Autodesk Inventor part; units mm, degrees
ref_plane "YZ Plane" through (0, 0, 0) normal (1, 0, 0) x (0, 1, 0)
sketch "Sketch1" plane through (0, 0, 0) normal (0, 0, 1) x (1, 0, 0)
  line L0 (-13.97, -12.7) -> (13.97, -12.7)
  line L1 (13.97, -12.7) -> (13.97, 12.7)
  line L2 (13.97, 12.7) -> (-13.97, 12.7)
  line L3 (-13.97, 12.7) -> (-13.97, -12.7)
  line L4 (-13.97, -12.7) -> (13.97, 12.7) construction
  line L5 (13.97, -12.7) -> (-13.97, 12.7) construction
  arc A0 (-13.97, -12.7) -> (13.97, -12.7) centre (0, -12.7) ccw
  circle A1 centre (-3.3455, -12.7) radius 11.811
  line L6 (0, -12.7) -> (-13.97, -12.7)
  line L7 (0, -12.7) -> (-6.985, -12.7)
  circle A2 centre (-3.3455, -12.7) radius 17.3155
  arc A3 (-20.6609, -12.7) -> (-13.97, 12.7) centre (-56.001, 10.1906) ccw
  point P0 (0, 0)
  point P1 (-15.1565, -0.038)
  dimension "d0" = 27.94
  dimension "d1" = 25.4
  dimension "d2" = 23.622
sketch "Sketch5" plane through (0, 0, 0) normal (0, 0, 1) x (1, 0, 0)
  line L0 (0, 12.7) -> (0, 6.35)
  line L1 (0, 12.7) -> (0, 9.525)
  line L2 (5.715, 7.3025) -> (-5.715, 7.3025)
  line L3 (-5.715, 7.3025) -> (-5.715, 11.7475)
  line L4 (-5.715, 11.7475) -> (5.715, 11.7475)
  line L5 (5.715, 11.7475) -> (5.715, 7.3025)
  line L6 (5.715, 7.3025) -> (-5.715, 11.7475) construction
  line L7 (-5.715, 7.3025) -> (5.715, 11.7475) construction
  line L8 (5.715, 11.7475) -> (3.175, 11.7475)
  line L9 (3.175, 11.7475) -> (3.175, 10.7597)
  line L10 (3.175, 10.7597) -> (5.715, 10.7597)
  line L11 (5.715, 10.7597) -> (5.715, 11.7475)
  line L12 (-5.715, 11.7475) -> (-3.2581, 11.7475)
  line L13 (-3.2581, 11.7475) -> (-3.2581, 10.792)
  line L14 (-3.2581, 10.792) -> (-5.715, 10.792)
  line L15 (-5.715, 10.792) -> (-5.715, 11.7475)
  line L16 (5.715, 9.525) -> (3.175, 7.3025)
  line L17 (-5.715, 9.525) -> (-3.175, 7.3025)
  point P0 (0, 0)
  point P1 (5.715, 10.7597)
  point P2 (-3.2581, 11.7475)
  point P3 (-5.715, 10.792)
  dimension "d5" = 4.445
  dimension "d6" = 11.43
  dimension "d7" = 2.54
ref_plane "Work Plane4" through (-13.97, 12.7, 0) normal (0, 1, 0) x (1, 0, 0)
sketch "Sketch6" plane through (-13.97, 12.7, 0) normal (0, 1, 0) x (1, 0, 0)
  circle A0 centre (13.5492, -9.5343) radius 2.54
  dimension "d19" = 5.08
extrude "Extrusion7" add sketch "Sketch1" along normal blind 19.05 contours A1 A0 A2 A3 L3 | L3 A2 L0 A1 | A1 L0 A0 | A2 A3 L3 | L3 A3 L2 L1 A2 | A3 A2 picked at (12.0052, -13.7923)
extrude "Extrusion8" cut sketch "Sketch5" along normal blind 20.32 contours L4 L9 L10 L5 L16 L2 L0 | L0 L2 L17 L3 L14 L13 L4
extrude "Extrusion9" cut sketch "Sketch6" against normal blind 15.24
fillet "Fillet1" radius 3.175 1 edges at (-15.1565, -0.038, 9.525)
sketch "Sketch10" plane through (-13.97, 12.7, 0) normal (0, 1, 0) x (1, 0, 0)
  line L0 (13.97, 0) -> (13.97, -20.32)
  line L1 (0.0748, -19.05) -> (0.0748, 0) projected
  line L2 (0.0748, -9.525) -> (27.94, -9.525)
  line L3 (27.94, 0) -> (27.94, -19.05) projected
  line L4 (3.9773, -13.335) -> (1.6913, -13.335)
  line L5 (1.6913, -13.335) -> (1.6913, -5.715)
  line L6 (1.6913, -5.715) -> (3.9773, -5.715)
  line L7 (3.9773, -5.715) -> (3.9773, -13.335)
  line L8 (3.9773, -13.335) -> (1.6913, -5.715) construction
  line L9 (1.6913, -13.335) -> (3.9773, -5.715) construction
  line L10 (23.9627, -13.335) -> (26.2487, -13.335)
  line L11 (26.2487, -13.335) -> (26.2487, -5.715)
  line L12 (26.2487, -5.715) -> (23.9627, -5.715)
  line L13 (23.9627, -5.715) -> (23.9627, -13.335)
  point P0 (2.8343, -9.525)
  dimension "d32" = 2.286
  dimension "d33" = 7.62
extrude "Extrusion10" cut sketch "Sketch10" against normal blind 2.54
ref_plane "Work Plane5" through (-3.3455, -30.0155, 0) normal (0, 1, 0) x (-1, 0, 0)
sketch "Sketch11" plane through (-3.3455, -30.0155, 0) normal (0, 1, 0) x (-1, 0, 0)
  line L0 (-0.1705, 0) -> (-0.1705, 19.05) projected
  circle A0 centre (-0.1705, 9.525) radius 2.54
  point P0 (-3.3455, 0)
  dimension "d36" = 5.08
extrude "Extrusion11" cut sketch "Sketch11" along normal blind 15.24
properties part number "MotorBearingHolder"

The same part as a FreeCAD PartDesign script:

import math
import FreeCAD as App
import Part
import Sketcher

V = App.Vector
Q = App.Units.Quantity


def edges_at(feature, points):
    """Names of the edges that pass closest to the given points."""
    edges = feature.Shape.Edges
    near = lambda p: min(range(len(edges)), key=lambda i: edges[i].distToShape(Part.Vertex(*p))[0])
    return sorted({f"Edge{near(p) + 1}" for p in points})

doc = App.newDocument("Part")
body = doc.addObject("PartDesign::Body", "Body")

sketch1 = body.newObject("Sketcher::SketchObject", "Sketch")
sketch1.AttachmentSupport = (doc.getObject("XY_Plane"), [""])
sketch1.MapMode = "FlatFace"
sketch1.addGeometry(Part.LineSegment(V(13.97, -12.7, 0), V(13.97, 12.7, 0)), False)
sketch1.addGeometry(Part.LineSegment(V(13.97, 12.7, 0), V(-13.97, 12.7, 0)), False)
sketch1.addGeometry(Part.ArcOfCircle(Part.Circle(V(-56.001, 10.1906, 0), V(0, 0, 1), 42.105846), math.radians(-14.059152), math.radians(3.416706)), False)
sketch1.addGeometry(Part.ArcOfCircle(Part.Circle(V(-3.3455, -12.7, 0), V(0, 0, 1), 17.3155), math.radians(133.008024), math.radians(360)), False)
sketch1.addGeometry(Part.Circle(V(-3.3455, -12.7, 0), V(0, 0, 1), 11.811), False)
sketch1.addConstraint(Sketcher.Constraint("Coincident", 0, 2, 1, 1))
sketch1.addConstraint(Sketcher.Constraint("Coincident", 1, 2, 2, 2))
sketch1.addConstraint(Sketcher.Constraint("Coincident", 2, 1, 3, 1))
sketch1.addConstraint(Sketcher.Constraint("Tangent", 3, 2, 0, 1))
sketch1.addConstraint(Sketcher.Constraint("Vertical", 0))
sketch1.addConstraint(Sketcher.Constraint("Horizontal", 1))
sketch1.addConstraint(Sketcher.Constraint("Coincident", 4, 3, 3, 3))
sketch1.addConstraint(Sketcher.Constraint("Symmetric", 1, 2, 3, 2, -1, 1))
sketch1.addConstraint(Sketcher.Constraint("Diameter", 4, Q("0.93 in")))
sketch1.addConstraint(Sketcher.Constraint("DistanceY", 0, 1, 0, 2, Q("1 in")))
sketch1.addConstraint(Sketcher.Constraint("DistanceX", 1, 2, 1, 1, Q("1.1 in")))
sketch1.addConstraint(Sketcher.Constraint("Radius", 2, Q("1.6577 in")))
sketch1.addConstraint(Sketcher.Constraint("Radius", 3, Q("17.3155 mm")))
sketch1.addConstraint(Sketcher.Constraint("DistanceX", 2, 1, 3, 3, Q("0.465 in")))
pad1 = body.newObject("PartDesign::Pad", "Pad")
pad1.Profile = sketch1
pad1.Length = Q("0.75 in")

sketch2 = body.newObject("Sketcher::SketchObject", "Sketch001")
sketch2.AttachmentSupport = (doc.getObject("XY_Plane"), [""])
sketch2.MapMode = "FlatFace"
sketch2.addGeometry(Part.LineSegment(V(3.175, 11.7475, 0), V(-3.2581, 11.7475, 0)), False)
sketch2.addGeometry(Part.LineSegment(V(-3.2581, 11.7475, 0), V(-3.2581, 10.792, 0)), False)
sketch2.addGeometry(Part.LineSegment(V(-3.2581, 10.792, 0), V(-5.715, 10.792, 0)), False)
sketch2.addGeometry(Part.LineSegment(V(-5.715, 10.792, 0), V(-5.715, 9.525, 0)), False)
sketch2.addGeometry(Part.LineSegment(V(-5.715, 9.525, 0), V(-3.175, 7.3025, 0)), False)
sketch2.addGeometry(Part.LineSegment(V(-3.175, 7.3025, 0), V(3.175, 7.3025, 0)), False)
sketch2.addGeometry(Part.LineSegment(V(3.175, 7.3025, 0), V(5.715, 9.525, 0)), False)
sketch2.addGeometry(Part.LineSegment(V(5.715, 9.525, 0), V(5.715, 10.7597, 0)), False)
sketch2.addGeometry(Part.LineSegment(V(5.715, 10.7597, 0), V(3.175, 10.7597, 0)), False)
sketch2.addGeometry(Part.LineSegment(V(3.175, 10.7597, 0), V(3.175, 11.7475, 0)), False)
sketch2.addConstraint(Sketcher.Constraint("Coincident", 0, 2, 1, 1))
sketch2.addConstraint(Sketcher.Constraint("Coincident", 1, 2, 2, 1))
sketch2.addConstraint(Sketcher.Constraint("Coincident", 2, 2, 3, 1))
sketch2.addConstraint(Sketcher.Constraint("Coincident", 3, 2, 4, 1))
sketch2.addConstraint(Sketcher.Constraint("Coincident", 4, 2, 5, 1))
sketch2.addConstraint(Sketcher.Constraint("Coincident", 5, 2, 6, 1))
sketch2.addConstraint(Sketcher.Constraint("Coincident", 6, 2, 7, 1))
sketch2.addConstraint(Sketcher.Constraint("Coincident", 7, 2, 8, 1))
sketch2.addConstraint(Sketcher.Constraint("Coincident", 8, 2, 9, 1))
sketch2.addConstraint(Sketcher.Constraint("Coincident", 9, 2, 0, 1))
sketch2.addConstraint(Sketcher.Constraint("Horizontal", 0))
sketch2.addConstraint(Sketcher.Constraint("Vertical", 1))
sketch2.addConstraint(Sketcher.Constraint("Horizontal", 2))
sketch2.addConstraint(Sketcher.Constraint("Vertical", 3))
sketch2.addConstraint(Sketcher.Constraint("Horizontal", 5))
sketch2.addConstraint(Sketcher.Constraint("Vertical", 7))
sketch2.addConstraint(Sketcher.Constraint("Horizontal", 8))
sketch2.addConstraint(Sketcher.Constraint("Vertical", 9))
sketch2.addConstraint(Sketcher.Constraint("Symmetric", 3, 2, 6, 2, -2))
sketch2.addConstraint(Sketcher.Constraint("Vertical", 5, 2, 8, 2))
sketch2.addConstraint(Sketcher.Constraint("Equal", 4, 6))
sketch2.addConstraint(Sketcher.Constraint("DistanceX", 8, 2, 8, 1, Q("0.1 in")))
sketch2.addConstraint(Sketcher.Constraint("DistanceX", 3, 2, 6, 2, Q("0.45 in")))
sketch2.addConstraint(Sketcher.Constraint("DistanceY", 4, 2, 0, 2, Q("0.175 in")))
sketch2.addConstraint(Sketcher.Constraint("DistanceY", 7, 1, 7, 2, Q("0.0486 in")))
sketch2.addConstraint(Sketcher.Constraint("DistanceY", 9, 1, 9, 2, Q("0.0389 in")))
sketch2.addConstraint(Sketcher.Constraint("DistanceY", -1, 1, 3, 2, Q("0.375 in")))
sketch2.addConstraint(Sketcher.Constraint("DistanceX", 0, 2, 0, 1, Q("6.433 mm")))
sketch2.addConstraint(Sketcher.Constraint("DistanceY", 1, 2, 1, 1, Q("0.9555 mm")))
pocket1 = body.newObject("PartDesign::Pocket", "Pocket")
pocket1.Profile = sketch2
pocket1.Length = Q("0.8 in")
pocket1.Reversed = True

sketch3 = body.newObject("Sketcher::SketchObject", "Sketch002")
sketch3.AttachmentSupport = (doc.getObject("XZ_Plane"), [""])
sketch3.MapMode = "FlatFace"
sketch3.AttachmentOffset = App.Placement(V(0, 0, -0.5 * 25.4), App.Rotation())
sketch3.addGeometry(Part.Circle(V(-0.4208, 9.5343, 0), V(0, 0, 1), 2.54), False)
sketch3.addConstraint(Sketcher.Constraint("Diameter", 0, Q("0.2 in")))
sketch3.addConstraint(Sketcher.Constraint("DistanceX", 0, 3, -1, 1, Q("0.4208 mm")))
sketch3.addConstraint(Sketcher.Constraint("DistanceY", -1, 1, 0, 3, Q("9.5343 mm")))
pocket2 = body.newObject("PartDesign::Pocket", "Pocket001")
pocket2.Profile = sketch3
pocket2.Length = Q("0.6 in")
pocket2.Reversed = True
doc.recompute()

fillet = body.newObject("PartDesign::Fillet", "Fillet")
fillet.Base = (pocket2, edges_at(pocket2, [(-15.156, -0.038, 9.525)]))
fillet.Radius = Q("0.125 in")

sketch4 = body.newObject("Sketcher::SketchObject", "Sketch003")
sketch4.AttachmentSupport = (doc.getObject("XZ_Plane"), [""])
sketch4.MapMode = "FlatFace"
sketch4.AttachmentOffset = App.Placement(V(0, 0, -0.5 * 25.4), App.Rotation())
sketch4.addGeometry(Part.LineSegment(V(-12.2787, 5.715, 0), V(-12.2787, 13.335, 0)), False)
sketch4.addGeometry(Part.LineSegment(V(-12.2787, 13.335, 0), V(-9.9927, 13.335, 0)), False)
sketch4.addGeometry(Part.LineSegment(V(-9.9927, 13.335, 0), V(-9.9927, 5.715, 0)), False)
sketch4.addGeometry(Part.LineSegment(V(-9.9927, 5.715, 0), V(-12.2787, 5.715, 0)), False)
sketch4.addGeometry(Part.LineSegment(V(9.9927, 5.715, 0), V(9.9927, 13.335, 0)), False)
sketch4.addGeometry(Part.LineSegment(V(9.9927, 13.335, 0), V(12.2787, 13.335, 0)), False)
sketch4.addGeometry(Part.LineSegment(V(12.2787, 13.335, 0), V(12.2787, 5.715, 0)), False)
sketch4.addGeometry(Part.LineSegment(V(12.2787, 5.715, 0), V(9.9927, 5.715, 0)), False)
sketch4.addConstraint(Sketcher.Constraint("Coincident", 0, 2, 1, 1))
sketch4.addConstraint(Sketcher.Constraint("Coincident", 1, 2, 2, 1))
sketch4.addConstraint(Sketcher.Constraint("Coincident", 2, 2, 3, 1))
sketch4.addConstraint(Sketcher.Constraint("Coincident", 3, 2, 0, 1))
sketch4.addConstraint(Sketcher.Constraint("Coincident", 4, 2, 5, 1))
sketch4.addConstraint(Sketcher.Constraint("Coincident", 5, 2, 6, 1))
sketch4.addConstraint(Sketcher.Constraint("Coincident", 6, 2, 7, 1))
sketch4.addConstraint(Sketcher.Constraint("Coincident", 7, 2, 4, 1))
sketch4.addConstraint(Sketcher.Constraint("Vertical", 0))
sketch4.addConstraint(Sketcher.Constraint("Horizontal", 1))
sketch4.addConstraint(Sketcher.Constraint("Vertical", 2))
sketch4.addConstraint(Sketcher.Constraint("Horizontal", 3))
sketch4.addConstraint(Sketcher.Constraint("Vertical", 4))
sketch4.addConstraint(Sketcher.Constraint("Horizontal", 5))
sketch4.addConstraint(Sketcher.Constraint("Vertical", 6))
sketch4.addConstraint(Sketcher.Constraint("Horizontal", 7))
sketch4.addConstraint(Sketcher.Constraint("Symmetric", 1, 2, 4, 2, -2))
sketch4.addConstraint(Sketcher.Constraint("Symmetric", 3, 2, 6, 2, -2))
sketch4.addConstraint(Sketcher.Constraint("DistanceY", 0, 1, 0, 2, Q("0.3 in")))
sketch4.addConstraint(Sketcher.Constraint("DistanceX", 1, 1, 1, 2, Q("0.09 in")))
sketch4.addConstraint(Sketcher.Constraint("DistanceY", -1, 1, 0, 2, Q("0.525 in")))
sketch4.addConstraint(Sketcher.Constraint("DistanceX", 0, 2, -1, 1, Q("12.2787 mm")))
pocket3 = body.newObject("PartDesign::Pocket", "Pocket002")
pocket3.Profile = sketch4
pocket3.Length = Q("0.1 in")
pocket3.Reversed = True

sketch5 = body.newObject("Sketcher::SketchObject", "Sketch004")
sketch5.AttachmentSupport = (doc.getObject("XZ_Plane"), [""])
sketch5.MapMode = "FlatFace"
sketch5.AttachmentOffset = App.Placement(V(0, 0, 30.0155), App.Rotation())
sketch5.addGeometry(Part.Circle(V(-3.175, 9.525, 0), V(0, 0, 1), 2.54), False)
sketch5.addConstraint(Sketcher.Constraint("Diameter", 0, Q("0.2 in")))
sketch5.addConstraint(Sketcher.Constraint("DistanceX", 0, 3, -1, 1, Q("0.125 in")))
sketch5.addConstraint(Sketcher.Constraint("DistanceY", -1, 1, 0, 3, Q("0.375 in")))
pocket4 = body.newObject("PartDesign::Pocket", "Pocket003")
pocket4.Profile = sketch5
pocket4.Length = Q("0.6 in")

doc.recompute()
